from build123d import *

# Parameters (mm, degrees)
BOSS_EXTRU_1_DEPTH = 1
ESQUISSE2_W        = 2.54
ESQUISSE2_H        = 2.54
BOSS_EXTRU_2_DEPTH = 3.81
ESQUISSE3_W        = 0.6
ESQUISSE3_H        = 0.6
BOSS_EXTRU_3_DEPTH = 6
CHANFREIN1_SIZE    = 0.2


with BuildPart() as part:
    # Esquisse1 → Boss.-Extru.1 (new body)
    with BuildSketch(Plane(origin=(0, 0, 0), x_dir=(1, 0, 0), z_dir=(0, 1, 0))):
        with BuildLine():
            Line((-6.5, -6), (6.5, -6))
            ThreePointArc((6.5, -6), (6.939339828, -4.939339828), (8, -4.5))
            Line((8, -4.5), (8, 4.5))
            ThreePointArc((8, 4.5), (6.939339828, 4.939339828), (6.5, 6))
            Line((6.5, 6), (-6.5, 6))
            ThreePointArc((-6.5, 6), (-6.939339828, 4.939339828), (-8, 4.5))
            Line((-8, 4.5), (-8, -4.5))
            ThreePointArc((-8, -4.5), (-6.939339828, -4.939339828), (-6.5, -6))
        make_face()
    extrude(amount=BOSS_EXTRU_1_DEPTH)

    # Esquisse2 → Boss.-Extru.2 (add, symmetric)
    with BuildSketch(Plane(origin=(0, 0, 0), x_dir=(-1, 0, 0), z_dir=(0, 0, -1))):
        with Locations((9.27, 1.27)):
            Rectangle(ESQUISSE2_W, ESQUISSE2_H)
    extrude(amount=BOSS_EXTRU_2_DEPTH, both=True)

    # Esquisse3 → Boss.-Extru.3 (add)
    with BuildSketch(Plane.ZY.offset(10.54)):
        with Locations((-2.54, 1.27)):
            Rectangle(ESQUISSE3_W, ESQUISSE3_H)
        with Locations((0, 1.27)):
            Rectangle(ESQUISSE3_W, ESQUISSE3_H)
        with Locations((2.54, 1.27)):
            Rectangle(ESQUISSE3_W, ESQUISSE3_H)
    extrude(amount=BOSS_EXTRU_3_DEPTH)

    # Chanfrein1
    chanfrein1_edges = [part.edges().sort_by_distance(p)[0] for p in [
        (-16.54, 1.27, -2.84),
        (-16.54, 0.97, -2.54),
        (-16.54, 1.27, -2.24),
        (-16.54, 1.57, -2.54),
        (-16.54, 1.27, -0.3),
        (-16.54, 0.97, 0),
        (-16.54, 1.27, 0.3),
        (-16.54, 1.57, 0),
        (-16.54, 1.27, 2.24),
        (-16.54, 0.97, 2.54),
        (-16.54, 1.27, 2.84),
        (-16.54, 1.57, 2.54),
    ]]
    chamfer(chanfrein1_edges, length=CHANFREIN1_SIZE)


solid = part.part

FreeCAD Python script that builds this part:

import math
import FreeCAD as App
import Part
import Sketcher
from FreeCAD import Vector


def edges_at(feature, points):
    """Names of the edges that pass closest to the given points."""
    edges = feature.Shape.Edges
    near = lambda p: min(range(len(edges)), key=lambda i: edges[i].distToShape(Part.Vertex(*p))[0])
    return sorted({f"Edge{near(p) + 1}" for p in points})


def add_polygon(sketch, points):
    """Adds a closed chain of lines whose ends are joined by coincident constraints."""
    first, n = sketch.GeometryCount, len(points)
    for a, b in zip(points, points[1:] + points[:1]):
        sketch.addGeometry(Part.LineSegment(App.Vector(*a, 0), App.Vector(*b, 0)), False)
    for i in range(n):
        sketch.addConstraint(Sketcher.Constraint("Coincident", first + i, 2, first + (i + 1) % n, 1))

doc = App.newDocument("Part")
body = doc.addObject("PartDesign::Body", "Body")

# Sketch on XZ plane
sketch1 = body.newObject("Sketcher::SketchObject", "Sketch")
sketch1.AttachmentSupport = (doc.getObject("XZ_Plane"), [""])
sketch1.MapMode = "FlatFace"
sketch1.addGeometry([
    Part.LineSegment(Vector(-6.5, 6, 0), Vector(6.5, 6, 0)),  # 0
    Part.ArcOfCircle(Part.Circle(Vector(8, 6, 0), Vector(0, 0, 1), 1.5), math.radians(180), math.radians(270)),  # 1
    Part.LineSegment(Vector(8, 4.5, 0), Vector(8, -4.5, 0)),  # 2
    Part.ArcOfCircle(Part.Circle(Vector(8, -6, 0), Vector(0, 0, 1), 1.5), math.radians(90), math.radians(180)),  # 3
    Part.LineSegment(Vector(6.5, -6, 0), Vector(-6.5, -6, 0)),  # 4
    Part.ArcOfCircle(Part.Circle(Vector(-8, -6, 0), Vector(0, 0, 1), 1.5), math.radians(0), math.radians(90)),  # 5
    Part.LineSegment(Vector(-8, -4.5, 0), Vector(-8, 4.5, 0)),  # 6
    Part.ArcOfCircle(Part.Circle(Vector(-8, 6, 0), Vector(0, 0, 1), 1.5), math.radians(-90), math.radians(0)),  # 7
], False)
sketch1.addConstraint([
    Sketcher.Constraint("Coincident", 0, 2, 1, 1),
    Sketcher.Constraint("Coincident", 1, 2, 2, 1),
    Sketcher.Constraint("Coincident", 2, 2, 3, 1),
    Sketcher.Constraint("Coincident", 3, 2, 4, 1),
    Sketcher.Constraint("Coincident", 4, 2, 5, 1),
    Sketcher.Constraint("Coincident", 5, 2, 6, 1),
    Sketcher.Constraint("Coincident", 6, 2, 7, 1),
    Sketcher.Constraint("Coincident", 7, 2, 0, 1),
    Sketcher.Constraint("Horizontal", 0),
    Sketcher.Constraint("Vertical", 2),
    Sketcher.Constraint("Horizontal", 4),
    Sketcher.Constraint("Vertical", 6),
    Sketcher.Constraint("Equal", 1, 3),
    Sketcher.Constraint("Equal", 3, 5),
    Sketcher.Constraint("Equal", 5, 7),
    Sketcher.Constraint("Symmetric", 1, 3, 5, 3, -1, 1),
    Sketcher.Constraint("Symmetric", 3, 3, 7, 3, -1, 1),
    Sketcher.Constraint("Symmetric", 3, 3, 5, 3, -2),
    Sketcher.Constraint("Horizontal", 7, 3, 0, 2),
    Sketcher.Constraint("Horizontal", 5, 3, 3, 2),
    Sketcher.Constraint("Vertical", 3, 3, 1, 2),
    Sketcher.Constraint("Vertical", 7, 3, 5, 2),
    Sketcher.Constraint("Radius", 1, 1.5),
    Sketcher.Constraint("DistanceX", 0, 1, 0, 2, 13.0),
    Sketcher.Constraint("DistanceY", 2, 2, 2, 1, 9.0),
])
pad1 = body.newObject("PartDesign::Pad", "Pad")
pad1.Profile = sketch1
pad1.Length = 1
pad1.Reversed = True

# Sketch on XY plane
sketch2 = body.newObject("Sketcher::SketchObject", "Sketch001")
sketch2.AttachmentSupport = (doc.getObject("XY_Plane"), [""])
sketch2.MapMode = "FlatFace"
add_polygon(sketch2, [(-8, 2.5), (-8, 0), (-10.5, 0), (-10.5, 2.5)])  # lines 0-3
sketch2.addConstraint([
    Sketcher.Constraint("Vertical", 0),
    Sketcher.Constraint("Horizontal", 1),
    Sketcher.Constraint("Vertical", 2),
    Sketcher.Constraint("Horizontal", 3),
    Sketcher.Constraint("PointOnObject", 0, 2, -1),
    Sketcher.Constraint("Equal", 3, 0),
    Sketcher.Constraint("DistanceX", 0, 2, -1, 1, 8.0),
    Sketcher.Constraint("DistanceX", 1, 2, 1, 1, 2.54),
])
pad2 = body.newObject("PartDesign::Pad", "Pad001")
pad2.Profile = sketch2
pad2.Length = 7.62
pad2.Midplane = True

# Sketch on YZ plane
sketch3 = body.newObject("Sketcher::SketchObject", "Sketch002")
sketch3.AttachmentSupport = (doc.getObject("YZ_Plane"), [""])
sketch3.MapMode = "FlatFace"
sketch3.AttachmentOffset = App.Placement(Vector(0, 0, -10.54), App.Rotation())
add_polygon(sketch3, [(1.6, -2.8), (1, -2.8), (1, -2.2), (1.6, -2.2)])  # lines 0-3
add_polygon(sketch3, [(1.6, -0.3), (1, -0.3), (1, 0.3), (1.6, 0.3)])  # lines 4-7
add_polygon(sketch3, [(1.6, 2.2), (1, 2.2), (1, 2.8), (1.6, 2.8)])  # lines 8-11
sketch3.addConstraint([
    Sketcher.Constraint("Horizontal", 0),
    Sketcher.Constraint("Vertical", 1),
    Sketcher.Constraint("Horizontal", 2),
    Sketcher.Constraint("Vertical", 3),
    Sketcher.Constraint("Horizontal", 4),
    Sketcher.Constraint("Vertical", 5),
    Sketcher.Constraint("Horizontal", 6),
    Sketcher.Constraint("Vertical", 7),
    Sketcher.Constraint("Horizontal", 8),
    Sketcher.Constraint("Vertical", 9),
    Sketcher.Constraint("Horizontal", 10),
    Sketcher.Constraint("Vertical", 11),
    Sketcher.Constraint("Symmetric", 1, 2, 8, 2, -1),
    Sketcher.Constraint("Symmetric", 3, 2, 10, 2, -1),
    Sketcher.Constraint("Vertical", 1, 2, 4, 2),
    Sketcher.Constraint("Vertical", 3, 2, 6, 2),
    Sketcher.Constraint("Equal", 10, 1),
    Sketcher.Constraint("Equal", 3, 5),
    Sketcher.Constraint("DistanceX", 0, 2, 0, 1, 0.6),
    Sketcher.Constraint("DistanceY", 4, 2, -1, 1, 0.3),
    Sketcher.Constraint("DistanceX", -1, 1, 0, 2, 0.97),
    Sketcher.Constraint("DistanceY", 0, 2, -1, 1, 2.84),
])
pad3 = body.newObject("PartDesign::Pad", "Pad002")
pad3.Profile = sketch3
pad3.Length = 6
pad3.Reversed = True
doc.recompute()

chamfer = body.newObject("PartDesign::Chamfer", "Chamfer")
chamfer.Base = (pad3, edges_at(pad3, [
    (-16.54, 1.27, -2.84),
    (-16.54, 0.97, -2.54),
    (-16.54, 1.27, -2.24),
    (-16.54, 1.57, -2.54),
    (-16.54, 1.27, -0.3),
    (-16.54, 0.97, 0),
    (-16.54, 1.27, 0.3),
    (-16.54, 1.57, 0),
    (-16.54, 1.27, 2.24),
    (-16.54, 0.97, 2.54),
    (-16.54, 1.27, 2.84),
    (-16.54, 1.57, 2.54),
]))
chamfer.Size = 0.2

doc.recompute()
